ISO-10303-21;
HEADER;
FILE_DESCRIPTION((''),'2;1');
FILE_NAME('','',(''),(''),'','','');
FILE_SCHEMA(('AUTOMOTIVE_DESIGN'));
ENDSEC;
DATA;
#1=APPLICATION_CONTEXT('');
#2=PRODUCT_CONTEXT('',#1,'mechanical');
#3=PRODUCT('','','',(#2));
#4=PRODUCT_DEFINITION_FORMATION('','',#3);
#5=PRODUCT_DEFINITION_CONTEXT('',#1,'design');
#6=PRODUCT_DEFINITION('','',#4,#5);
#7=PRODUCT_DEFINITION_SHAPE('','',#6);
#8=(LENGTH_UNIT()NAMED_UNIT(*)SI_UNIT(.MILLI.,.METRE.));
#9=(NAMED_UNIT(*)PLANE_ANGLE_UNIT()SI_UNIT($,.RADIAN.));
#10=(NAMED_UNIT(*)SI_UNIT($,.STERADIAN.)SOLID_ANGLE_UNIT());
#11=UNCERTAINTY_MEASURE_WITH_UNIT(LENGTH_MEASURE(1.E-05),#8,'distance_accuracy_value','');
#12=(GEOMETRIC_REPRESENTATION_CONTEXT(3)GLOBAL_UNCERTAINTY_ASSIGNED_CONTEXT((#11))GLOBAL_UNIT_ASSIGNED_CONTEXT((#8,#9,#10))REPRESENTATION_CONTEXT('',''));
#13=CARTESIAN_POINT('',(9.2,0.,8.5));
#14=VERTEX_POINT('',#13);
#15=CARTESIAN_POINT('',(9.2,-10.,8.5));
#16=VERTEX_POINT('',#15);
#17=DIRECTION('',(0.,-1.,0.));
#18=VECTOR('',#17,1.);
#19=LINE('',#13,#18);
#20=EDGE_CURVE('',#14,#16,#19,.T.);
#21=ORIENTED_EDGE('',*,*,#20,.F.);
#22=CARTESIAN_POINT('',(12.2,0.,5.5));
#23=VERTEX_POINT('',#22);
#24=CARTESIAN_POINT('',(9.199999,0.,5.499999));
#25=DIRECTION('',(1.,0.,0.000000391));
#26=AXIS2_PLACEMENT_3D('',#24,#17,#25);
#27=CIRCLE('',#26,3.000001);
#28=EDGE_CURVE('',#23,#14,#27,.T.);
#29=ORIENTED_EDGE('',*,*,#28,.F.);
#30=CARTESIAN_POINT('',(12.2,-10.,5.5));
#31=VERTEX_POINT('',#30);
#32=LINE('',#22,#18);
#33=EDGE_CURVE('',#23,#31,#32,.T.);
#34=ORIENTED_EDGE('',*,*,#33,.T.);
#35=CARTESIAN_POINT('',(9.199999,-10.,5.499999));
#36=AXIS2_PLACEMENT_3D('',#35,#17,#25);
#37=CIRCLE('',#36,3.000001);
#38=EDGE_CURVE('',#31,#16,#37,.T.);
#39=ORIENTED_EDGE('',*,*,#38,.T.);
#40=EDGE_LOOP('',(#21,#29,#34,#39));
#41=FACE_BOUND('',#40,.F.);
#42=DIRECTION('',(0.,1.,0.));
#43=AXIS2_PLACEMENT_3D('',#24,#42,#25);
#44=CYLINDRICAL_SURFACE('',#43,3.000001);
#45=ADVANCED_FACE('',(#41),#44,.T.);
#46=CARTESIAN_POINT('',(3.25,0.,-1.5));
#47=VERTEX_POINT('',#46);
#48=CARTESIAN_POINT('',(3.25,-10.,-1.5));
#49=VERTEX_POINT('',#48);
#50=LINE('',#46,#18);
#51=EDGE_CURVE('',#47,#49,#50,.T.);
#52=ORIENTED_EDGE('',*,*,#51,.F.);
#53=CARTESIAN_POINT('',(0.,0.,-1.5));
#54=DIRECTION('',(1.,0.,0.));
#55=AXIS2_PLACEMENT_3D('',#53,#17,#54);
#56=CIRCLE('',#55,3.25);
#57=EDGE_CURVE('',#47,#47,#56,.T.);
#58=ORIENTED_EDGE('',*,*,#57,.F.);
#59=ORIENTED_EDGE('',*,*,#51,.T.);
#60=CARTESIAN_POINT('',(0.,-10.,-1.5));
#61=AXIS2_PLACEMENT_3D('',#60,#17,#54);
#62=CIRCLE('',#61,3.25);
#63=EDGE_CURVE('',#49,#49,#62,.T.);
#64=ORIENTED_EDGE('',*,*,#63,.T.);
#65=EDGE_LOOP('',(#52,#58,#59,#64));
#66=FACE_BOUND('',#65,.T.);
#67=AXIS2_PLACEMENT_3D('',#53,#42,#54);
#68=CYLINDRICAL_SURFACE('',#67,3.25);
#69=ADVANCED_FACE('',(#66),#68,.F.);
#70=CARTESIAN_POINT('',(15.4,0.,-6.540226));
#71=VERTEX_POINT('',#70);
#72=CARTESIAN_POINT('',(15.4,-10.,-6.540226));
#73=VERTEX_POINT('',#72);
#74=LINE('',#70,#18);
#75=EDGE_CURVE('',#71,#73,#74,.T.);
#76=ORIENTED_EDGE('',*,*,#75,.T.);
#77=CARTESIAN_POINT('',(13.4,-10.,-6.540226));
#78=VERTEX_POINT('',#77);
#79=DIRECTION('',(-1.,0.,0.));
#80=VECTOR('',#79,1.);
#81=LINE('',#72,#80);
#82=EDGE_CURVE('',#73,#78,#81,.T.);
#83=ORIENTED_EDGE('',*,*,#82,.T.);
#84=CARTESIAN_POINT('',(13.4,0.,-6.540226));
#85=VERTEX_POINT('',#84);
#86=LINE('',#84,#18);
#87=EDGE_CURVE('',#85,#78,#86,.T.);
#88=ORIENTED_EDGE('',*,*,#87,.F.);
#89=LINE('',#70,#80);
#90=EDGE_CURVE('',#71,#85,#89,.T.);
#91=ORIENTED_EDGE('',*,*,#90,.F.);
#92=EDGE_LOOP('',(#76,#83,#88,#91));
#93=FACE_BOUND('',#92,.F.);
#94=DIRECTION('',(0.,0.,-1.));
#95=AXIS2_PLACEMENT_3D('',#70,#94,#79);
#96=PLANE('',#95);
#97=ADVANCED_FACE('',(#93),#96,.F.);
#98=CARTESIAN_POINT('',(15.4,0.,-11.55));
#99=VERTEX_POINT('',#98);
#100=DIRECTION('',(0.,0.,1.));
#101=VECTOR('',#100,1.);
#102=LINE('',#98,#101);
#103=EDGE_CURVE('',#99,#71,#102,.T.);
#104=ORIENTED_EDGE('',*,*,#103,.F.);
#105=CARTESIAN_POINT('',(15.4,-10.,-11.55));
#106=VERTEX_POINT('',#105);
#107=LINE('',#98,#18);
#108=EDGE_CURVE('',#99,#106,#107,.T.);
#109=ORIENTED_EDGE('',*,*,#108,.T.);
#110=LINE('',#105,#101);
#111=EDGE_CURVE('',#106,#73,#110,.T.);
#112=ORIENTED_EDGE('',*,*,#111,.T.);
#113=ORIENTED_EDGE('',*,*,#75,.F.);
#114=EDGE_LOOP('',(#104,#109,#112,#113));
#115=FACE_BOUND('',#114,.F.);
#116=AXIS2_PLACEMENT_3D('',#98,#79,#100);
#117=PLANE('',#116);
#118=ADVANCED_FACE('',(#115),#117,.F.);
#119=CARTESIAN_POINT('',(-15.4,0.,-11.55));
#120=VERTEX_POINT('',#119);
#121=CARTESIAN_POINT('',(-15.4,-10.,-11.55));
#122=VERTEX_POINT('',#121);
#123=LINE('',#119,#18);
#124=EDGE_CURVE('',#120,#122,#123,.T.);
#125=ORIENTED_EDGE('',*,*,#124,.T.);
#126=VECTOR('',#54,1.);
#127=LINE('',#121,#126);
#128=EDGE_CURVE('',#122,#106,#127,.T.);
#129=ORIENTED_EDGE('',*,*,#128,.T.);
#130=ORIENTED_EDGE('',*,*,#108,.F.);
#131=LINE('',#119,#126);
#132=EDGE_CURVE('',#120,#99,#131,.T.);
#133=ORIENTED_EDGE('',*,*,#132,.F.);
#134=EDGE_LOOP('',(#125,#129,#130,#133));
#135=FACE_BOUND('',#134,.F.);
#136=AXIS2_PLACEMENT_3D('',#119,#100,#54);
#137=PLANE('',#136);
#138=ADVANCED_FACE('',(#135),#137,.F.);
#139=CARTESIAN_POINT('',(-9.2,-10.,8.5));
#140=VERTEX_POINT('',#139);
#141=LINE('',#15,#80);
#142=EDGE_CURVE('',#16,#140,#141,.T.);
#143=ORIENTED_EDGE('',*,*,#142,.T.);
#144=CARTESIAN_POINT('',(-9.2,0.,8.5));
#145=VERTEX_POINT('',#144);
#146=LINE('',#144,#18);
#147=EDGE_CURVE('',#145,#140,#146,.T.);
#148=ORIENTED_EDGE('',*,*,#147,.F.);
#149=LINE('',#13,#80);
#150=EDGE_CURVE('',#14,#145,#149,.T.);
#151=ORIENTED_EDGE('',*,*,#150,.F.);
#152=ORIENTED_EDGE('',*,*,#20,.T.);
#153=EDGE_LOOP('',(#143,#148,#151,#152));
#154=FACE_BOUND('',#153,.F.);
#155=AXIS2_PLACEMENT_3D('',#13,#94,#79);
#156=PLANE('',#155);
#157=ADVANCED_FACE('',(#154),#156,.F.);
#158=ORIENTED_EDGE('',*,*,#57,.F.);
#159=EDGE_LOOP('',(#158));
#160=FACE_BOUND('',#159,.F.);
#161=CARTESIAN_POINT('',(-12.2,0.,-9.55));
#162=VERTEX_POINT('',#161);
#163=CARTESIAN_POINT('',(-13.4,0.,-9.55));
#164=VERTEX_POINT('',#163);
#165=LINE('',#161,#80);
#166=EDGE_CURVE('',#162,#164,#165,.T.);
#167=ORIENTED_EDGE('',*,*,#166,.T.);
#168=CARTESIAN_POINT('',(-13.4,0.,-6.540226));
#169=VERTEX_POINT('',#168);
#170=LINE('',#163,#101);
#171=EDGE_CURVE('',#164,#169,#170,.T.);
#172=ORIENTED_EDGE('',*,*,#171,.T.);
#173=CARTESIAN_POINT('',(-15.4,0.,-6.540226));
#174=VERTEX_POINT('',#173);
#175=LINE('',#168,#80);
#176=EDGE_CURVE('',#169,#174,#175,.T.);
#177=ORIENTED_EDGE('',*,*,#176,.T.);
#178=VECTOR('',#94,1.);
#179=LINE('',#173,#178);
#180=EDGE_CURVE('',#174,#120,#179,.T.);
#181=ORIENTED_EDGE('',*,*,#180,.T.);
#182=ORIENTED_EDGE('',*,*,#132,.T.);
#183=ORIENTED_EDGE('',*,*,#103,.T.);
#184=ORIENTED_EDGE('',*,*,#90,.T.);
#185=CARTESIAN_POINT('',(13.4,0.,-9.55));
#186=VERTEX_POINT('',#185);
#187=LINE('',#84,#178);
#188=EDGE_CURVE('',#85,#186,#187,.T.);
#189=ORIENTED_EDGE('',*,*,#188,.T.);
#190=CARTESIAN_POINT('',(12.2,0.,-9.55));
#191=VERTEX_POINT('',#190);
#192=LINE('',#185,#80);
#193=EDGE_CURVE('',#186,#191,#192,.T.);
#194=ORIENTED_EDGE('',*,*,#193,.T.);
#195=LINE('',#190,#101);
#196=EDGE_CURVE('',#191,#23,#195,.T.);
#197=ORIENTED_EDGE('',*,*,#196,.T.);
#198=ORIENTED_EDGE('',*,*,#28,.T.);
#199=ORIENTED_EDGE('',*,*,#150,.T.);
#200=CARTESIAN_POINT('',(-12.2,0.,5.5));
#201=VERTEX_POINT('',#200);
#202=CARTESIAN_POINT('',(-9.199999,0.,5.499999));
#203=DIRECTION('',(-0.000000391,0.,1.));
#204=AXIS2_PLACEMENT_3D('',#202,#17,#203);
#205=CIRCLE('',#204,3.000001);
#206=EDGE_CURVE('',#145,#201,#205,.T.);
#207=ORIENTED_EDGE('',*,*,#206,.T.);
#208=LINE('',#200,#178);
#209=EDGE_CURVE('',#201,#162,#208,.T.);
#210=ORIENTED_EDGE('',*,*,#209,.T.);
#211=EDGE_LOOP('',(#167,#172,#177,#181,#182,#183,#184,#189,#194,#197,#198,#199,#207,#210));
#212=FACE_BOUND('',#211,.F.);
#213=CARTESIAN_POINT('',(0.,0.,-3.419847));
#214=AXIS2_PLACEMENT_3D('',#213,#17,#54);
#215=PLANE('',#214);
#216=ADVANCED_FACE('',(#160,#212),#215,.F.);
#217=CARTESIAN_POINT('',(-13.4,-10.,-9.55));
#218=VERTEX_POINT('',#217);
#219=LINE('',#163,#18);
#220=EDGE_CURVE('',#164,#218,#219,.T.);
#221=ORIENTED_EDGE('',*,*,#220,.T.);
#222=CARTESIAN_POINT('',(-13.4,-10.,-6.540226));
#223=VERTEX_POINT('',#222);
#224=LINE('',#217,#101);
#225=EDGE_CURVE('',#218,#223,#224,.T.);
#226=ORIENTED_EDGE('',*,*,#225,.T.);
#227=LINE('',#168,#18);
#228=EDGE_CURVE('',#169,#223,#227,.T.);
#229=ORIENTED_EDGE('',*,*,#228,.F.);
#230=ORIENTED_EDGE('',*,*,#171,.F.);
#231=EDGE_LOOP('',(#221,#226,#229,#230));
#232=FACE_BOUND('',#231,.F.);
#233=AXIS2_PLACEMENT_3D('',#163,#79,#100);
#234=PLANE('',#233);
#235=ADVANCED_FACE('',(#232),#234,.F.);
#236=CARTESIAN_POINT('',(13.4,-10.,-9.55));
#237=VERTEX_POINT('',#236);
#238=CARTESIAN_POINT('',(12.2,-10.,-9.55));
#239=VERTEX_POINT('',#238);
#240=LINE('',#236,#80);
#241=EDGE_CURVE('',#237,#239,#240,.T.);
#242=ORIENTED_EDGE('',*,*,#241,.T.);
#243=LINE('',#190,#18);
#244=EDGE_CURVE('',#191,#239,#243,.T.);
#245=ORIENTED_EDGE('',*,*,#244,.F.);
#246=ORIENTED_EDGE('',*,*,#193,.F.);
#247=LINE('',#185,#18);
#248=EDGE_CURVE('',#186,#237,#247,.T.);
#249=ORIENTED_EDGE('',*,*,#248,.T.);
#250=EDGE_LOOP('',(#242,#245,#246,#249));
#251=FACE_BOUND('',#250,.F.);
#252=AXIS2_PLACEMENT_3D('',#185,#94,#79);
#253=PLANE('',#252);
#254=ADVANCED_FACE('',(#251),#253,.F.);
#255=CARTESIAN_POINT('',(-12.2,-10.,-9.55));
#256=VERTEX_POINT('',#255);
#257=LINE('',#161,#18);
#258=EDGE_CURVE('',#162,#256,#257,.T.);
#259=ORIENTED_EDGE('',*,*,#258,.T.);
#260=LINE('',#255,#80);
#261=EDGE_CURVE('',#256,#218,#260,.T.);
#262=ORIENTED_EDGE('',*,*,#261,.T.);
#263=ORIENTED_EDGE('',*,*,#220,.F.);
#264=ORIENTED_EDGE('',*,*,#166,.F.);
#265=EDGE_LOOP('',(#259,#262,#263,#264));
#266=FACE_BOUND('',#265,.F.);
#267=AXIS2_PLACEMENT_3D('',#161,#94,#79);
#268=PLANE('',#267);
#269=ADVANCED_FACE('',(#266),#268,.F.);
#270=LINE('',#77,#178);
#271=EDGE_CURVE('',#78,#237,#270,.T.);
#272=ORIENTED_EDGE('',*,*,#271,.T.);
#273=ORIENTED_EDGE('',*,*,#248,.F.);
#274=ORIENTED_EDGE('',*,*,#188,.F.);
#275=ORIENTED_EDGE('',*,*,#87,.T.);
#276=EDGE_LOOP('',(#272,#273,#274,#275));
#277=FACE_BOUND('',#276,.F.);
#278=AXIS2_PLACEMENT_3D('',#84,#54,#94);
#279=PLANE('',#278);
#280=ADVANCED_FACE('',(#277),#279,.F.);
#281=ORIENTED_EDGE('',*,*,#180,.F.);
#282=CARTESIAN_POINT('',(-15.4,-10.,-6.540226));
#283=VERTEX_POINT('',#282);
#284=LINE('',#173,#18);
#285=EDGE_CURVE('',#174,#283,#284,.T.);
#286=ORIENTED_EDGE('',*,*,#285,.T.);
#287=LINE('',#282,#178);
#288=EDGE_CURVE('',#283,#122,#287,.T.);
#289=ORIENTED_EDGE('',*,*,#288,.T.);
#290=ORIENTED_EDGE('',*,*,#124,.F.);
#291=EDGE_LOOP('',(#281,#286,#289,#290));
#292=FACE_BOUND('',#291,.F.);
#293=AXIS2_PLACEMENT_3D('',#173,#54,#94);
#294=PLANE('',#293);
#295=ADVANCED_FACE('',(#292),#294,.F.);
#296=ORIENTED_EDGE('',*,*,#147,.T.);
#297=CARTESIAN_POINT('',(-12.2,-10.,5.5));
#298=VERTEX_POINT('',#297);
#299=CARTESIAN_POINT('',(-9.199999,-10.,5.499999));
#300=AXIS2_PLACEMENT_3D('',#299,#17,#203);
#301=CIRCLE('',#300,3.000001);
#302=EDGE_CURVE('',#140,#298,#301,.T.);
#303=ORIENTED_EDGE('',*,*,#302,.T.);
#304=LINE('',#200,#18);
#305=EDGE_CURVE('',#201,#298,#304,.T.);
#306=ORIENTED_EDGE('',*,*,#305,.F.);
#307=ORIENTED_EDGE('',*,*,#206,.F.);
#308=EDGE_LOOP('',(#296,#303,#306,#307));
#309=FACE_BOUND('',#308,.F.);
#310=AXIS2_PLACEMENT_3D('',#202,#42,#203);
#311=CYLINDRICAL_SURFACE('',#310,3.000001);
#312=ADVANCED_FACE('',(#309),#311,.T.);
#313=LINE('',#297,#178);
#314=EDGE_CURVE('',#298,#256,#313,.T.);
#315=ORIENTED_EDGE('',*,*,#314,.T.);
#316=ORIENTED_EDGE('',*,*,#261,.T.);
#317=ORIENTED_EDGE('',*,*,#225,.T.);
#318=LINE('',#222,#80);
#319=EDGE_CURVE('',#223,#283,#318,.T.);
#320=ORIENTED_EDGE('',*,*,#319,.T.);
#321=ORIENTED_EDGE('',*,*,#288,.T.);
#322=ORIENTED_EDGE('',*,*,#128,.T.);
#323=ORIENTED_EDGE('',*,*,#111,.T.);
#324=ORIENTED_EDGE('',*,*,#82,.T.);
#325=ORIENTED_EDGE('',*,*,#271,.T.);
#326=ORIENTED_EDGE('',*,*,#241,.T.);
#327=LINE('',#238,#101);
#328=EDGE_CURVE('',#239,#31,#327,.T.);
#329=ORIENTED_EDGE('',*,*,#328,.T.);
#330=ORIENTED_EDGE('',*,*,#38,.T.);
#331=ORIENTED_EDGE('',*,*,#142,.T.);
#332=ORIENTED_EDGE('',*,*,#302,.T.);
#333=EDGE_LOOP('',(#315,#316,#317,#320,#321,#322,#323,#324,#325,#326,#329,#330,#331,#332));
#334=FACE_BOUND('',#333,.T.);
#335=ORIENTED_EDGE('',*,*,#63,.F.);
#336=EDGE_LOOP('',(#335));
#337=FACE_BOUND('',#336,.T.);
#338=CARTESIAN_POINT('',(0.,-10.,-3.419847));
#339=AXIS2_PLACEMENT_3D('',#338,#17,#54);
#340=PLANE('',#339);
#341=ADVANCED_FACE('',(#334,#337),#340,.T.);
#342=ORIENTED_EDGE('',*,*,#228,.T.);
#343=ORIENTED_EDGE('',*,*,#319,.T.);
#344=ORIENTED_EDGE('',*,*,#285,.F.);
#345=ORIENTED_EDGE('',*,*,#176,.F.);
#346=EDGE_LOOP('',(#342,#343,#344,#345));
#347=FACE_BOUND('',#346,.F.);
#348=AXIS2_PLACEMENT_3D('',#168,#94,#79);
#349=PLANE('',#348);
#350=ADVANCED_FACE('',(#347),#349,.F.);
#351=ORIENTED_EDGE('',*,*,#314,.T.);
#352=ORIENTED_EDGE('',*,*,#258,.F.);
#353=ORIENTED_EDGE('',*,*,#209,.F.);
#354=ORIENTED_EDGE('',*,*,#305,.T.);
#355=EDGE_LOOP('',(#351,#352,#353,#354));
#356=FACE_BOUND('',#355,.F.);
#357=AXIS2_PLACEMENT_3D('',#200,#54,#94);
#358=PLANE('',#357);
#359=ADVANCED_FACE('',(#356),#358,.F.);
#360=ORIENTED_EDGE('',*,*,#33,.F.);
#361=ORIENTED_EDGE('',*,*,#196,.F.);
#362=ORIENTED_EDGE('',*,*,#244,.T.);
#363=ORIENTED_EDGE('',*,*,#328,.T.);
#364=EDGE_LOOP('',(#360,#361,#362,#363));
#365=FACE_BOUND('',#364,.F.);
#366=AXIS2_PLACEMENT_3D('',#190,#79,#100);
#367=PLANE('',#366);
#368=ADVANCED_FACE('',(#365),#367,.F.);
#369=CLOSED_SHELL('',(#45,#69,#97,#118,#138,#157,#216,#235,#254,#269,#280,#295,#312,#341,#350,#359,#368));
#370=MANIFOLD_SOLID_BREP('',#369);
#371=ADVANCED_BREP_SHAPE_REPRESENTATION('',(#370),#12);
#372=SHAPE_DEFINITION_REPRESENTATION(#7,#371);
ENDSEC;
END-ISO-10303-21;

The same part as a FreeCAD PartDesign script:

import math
import FreeCAD as App
import Part
import Sketcher
Q = App.Units.Quantity

doc = App.newDocument("Part")
body = doc.addObject("PartDesign::Body", "Body")

# Sketch on XZ plane
sketch1 = body.newObject("Sketcher::SketchObject", "Sketch")
sketch1.AttachmentSupport = (doc.getObject("XZ_Plane"), [""])
sketch1.MapMode = "FlatFace"
sketch1.addGeometry([
    Part.LineSegment(App.Vector(-13.4, -6.540226, 0), App.Vector(-15.4, -6.540226, 0)),  # 0
    Part.LineSegment(App.Vector(-15.4, -6.540226, 0), App.Vector(-15.4, -11.55, 0)),  # 1
    Part.LineSegment(App.Vector(-15.4, -11.55, 0), App.Vector(15.4, -11.55, 0)),  # 2
    Part.LineSegment(App.Vector(15.4, -11.55, 0), App.Vector(15.4, -6.540226, 0)),  # 3
    Part.LineSegment(App.Vector(15.4, -6.540226, 0), App.Vector(13.4, -6.540226, 0)),  # 4
    Part.LineSegment(App.Vector(13.4, -6.540226, 0), App.Vector(13.4, -9.55, 0)),  # 5
    Part.LineSegment(App.Vector(13.4, -9.55, 0), App.Vector(12.2, -9.55, 0)),  # 6
    Part.LineSegment(App.Vector(12.2, -9.55, 0), App.Vector(12.2, 5.5, 0)),  # 7
    Part.ArcOfCircle(Part.Circle(App.Vector(9.199999, 5.499999, 0), App.Vector(0, 0, 1), 3.000001), math.radians(0.000022), math.radians(89.999978)),  # 8
    Part.LineSegment(App.Vector(9.2, 8.5, 0), App.Vector(-9.2, 8.5, 0)),  # 9
    Part.ArcOfCircle(Part.Circle(App.Vector(-9.199999, 5.499999, 0), App.Vector(0, 0, 1), 3.000001), math.radians(90.000022), math.radians(179.999978)),  # 10
    Part.LineSegment(App.Vector(-12.2, 5.5, 0), App.Vector(-12.2, -9.55, 0)),  # 11
    Part.LineSegment(App.Vector(-12.2, -9.55, 0), App.Vector(-13.4, -9.55, 0)),  # 12
    Part.LineSegment(App.Vector(-13.4, -9.55, 0), App.Vector(-13.4, -6.540226, 0)),  # 13
    Part.Circle(App.Vector(0, -1.5, 0), App.Vector(0, 0, 1), 3.25),  # 14
], False)
sketch1.addConstraint([
    Sketcher.Constraint("Coincident", 0, 2, 1, 1),
    Sketcher.Constraint("Coincident", 1, 2, 2, 1),
    Sketcher.Constraint("Coincident", 2, 2, 3, 1),
    Sketcher.Constraint("Coincident", 3, 2, 4, 1),
    Sketcher.Constraint("Coincident", 4, 2, 5, 1),
    Sketcher.Constraint("Coincident", 5, 2, 6, 1),
    Sketcher.Constraint("Coincident", 6, 2, 7, 1),
    Sketcher.Constraint("Tangent", 7, 2, 8, 1),
    Sketcher.Constraint("Tangent", 8, 2, 9, 1),
    Sketcher.Constraint("Tangent", 9, 2, 10, 1),
    Sketcher.Constraint("Tangent", 10, 2, 11, 1),
    Sketcher.Constraint("Coincident", 11, 2, 12, 1),
    Sketcher.Constraint("Coincident", 12, 2, 13, 1),
    Sketcher.Constraint("Coincident", 13, 2, 0, 1),
    Sketcher.Constraint("Horizontal", 0),
    Sketcher.Constraint("Vertical", 1),
    Sketcher.Constraint("Horizontal", 2),
    Sketcher.Constraint("Vertical", 3),
    Sketcher.Constraint("Horizontal", 4),
    Sketcher.Constraint("Vertical", 5),
    Sketcher.Constraint("Horizontal", 6),
    Sketcher.Constraint("Vertical", 7),
    Sketcher.Constraint("Horizontal", 9),
    Sketcher.Constraint("Vertical", 11),
    Sketcher.Constraint("Horizontal", 12),
    Sketcher.Constraint("Vertical", 13),
    Sketcher.Constraint("Equal", 8, 10),
    Sketcher.Constraint("Symmetric", 0, 2, 3, 2, -2),
    Sketcher.Constraint("Symmetric", 6, 2, 11, 2, -2),
    Sketcher.Constraint("PointOnObject", 14, 3, -2),
    Sketcher.Constraint("Equal", 0, 4),
    Sketcher.Constraint("Radius", 8, Q("3.000001 mm")),
    Sketcher.Constraint("Diameter", 14, Q("6.5 mm")),
    Sketcher.Constraint("DistanceX", 0, 2, 0, 1, Q("2 mm")),
    Sketcher.Constraint("DistanceX", 2, 1, 2, 2, Q("30.8 mm")),
    Sketcher.Constraint("DistanceX", 6, 2, 6, 1, Q("1.2 mm")),
    Sketcher.Constraint("DistanceY", 14, 3, 8, 3, Q("6.999999 mm")),
    Sketcher.Constraint("DistanceY", 2, 2, 5, 2, Q("2 mm")),
    Sketcher.Constraint("DistanceY", 7, 1, 7, 2, Q("15.05 mm")),
    Sketcher.Constraint("DistanceY", -1, 1, 8, 3, Q("5.499999 mm")),
    Sketcher.Constraint("DistanceY", 1, 2, 1, 1, Q("5.009774 mm")),
])
pad1 = body.newObject("PartDesign::Pad", "Pad")
pad1.Profile = sketch1
pad1.Length = 10

doc.recompute()
